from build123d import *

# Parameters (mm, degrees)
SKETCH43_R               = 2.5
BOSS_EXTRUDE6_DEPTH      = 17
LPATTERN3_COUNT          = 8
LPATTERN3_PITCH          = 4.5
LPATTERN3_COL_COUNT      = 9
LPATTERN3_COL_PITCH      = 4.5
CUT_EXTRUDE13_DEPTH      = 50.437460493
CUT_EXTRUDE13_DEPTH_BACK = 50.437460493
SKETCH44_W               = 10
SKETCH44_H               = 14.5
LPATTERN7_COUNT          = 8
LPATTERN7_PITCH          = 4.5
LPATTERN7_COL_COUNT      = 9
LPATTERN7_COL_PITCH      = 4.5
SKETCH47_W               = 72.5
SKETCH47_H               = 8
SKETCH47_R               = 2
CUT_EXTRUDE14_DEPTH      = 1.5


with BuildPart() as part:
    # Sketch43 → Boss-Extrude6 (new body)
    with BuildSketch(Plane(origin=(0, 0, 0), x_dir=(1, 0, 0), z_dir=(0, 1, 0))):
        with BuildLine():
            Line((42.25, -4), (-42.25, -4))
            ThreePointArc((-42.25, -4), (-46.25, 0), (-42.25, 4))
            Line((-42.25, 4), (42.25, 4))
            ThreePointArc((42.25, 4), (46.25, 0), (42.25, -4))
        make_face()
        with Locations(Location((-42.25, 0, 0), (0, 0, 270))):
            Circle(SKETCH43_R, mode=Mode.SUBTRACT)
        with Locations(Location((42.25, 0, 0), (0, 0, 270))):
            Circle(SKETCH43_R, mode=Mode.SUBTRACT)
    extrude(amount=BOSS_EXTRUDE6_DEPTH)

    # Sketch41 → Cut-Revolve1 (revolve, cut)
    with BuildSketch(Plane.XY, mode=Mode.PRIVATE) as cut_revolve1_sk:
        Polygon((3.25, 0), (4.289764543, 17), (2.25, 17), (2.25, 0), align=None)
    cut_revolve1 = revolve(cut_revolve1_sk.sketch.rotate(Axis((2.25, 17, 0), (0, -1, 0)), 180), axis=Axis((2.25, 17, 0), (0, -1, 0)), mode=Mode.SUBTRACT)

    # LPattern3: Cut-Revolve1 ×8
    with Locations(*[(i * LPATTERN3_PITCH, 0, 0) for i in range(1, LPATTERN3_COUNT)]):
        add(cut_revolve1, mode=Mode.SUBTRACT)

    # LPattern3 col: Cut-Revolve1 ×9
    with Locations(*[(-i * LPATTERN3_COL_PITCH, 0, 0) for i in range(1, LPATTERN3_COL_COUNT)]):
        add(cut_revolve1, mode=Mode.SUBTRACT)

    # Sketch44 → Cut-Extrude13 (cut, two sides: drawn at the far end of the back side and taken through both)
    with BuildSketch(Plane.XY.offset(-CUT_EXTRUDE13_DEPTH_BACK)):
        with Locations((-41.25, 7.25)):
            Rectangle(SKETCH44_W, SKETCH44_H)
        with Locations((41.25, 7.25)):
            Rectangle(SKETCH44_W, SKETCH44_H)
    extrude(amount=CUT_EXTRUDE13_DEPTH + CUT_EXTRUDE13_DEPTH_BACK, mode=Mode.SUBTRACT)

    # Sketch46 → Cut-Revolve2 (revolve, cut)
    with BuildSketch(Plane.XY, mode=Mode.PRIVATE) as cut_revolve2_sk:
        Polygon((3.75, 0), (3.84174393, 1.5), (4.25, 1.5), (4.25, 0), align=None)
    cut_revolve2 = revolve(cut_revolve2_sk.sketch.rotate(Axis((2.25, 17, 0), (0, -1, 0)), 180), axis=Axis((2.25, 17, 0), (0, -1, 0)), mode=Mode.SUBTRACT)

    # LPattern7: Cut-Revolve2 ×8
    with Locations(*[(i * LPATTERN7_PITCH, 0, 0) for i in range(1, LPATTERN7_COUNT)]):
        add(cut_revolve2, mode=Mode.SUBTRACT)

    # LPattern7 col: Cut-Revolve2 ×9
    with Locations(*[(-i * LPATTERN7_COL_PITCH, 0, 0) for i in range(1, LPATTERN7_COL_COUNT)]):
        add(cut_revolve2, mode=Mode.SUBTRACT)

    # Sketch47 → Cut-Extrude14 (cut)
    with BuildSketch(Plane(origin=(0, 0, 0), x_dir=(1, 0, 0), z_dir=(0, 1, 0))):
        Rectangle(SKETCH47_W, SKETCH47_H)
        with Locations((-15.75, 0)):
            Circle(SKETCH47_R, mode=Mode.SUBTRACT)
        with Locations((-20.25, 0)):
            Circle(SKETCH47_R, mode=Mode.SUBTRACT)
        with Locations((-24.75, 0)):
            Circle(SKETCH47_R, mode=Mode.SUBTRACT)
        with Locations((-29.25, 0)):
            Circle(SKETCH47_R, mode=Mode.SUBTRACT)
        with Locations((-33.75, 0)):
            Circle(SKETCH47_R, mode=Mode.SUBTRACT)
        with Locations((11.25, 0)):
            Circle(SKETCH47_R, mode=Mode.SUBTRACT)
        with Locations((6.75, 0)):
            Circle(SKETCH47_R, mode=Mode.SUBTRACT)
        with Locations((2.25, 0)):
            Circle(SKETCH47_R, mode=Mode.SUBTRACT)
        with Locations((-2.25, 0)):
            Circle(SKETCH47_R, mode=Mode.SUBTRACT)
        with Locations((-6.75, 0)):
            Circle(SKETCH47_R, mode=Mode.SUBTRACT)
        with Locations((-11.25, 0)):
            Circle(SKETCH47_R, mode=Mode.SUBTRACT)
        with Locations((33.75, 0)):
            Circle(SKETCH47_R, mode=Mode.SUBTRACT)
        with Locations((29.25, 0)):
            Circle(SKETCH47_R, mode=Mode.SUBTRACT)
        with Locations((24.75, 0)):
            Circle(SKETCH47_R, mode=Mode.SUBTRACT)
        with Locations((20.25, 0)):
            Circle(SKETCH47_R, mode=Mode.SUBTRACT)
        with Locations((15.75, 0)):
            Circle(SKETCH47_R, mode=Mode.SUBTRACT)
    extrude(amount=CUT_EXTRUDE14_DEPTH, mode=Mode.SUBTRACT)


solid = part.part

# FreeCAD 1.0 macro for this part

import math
import FreeCAD as App
import Part
import Sketcher
from FreeCAD import Vector
Q = App.Units.Quantity


def add_polygon(sketch, points):
    """Adds a closed chain of lines whose ends are joined by coincident constraints."""
    first, n = sketch.GeometryCount, len(points)
    for a, b in zip(points, points[1:] + points[:1]):
        sketch.addGeometry(Part.LineSegment(App.Vector(*a, 0), App.Vector(*b, 0)), False)
    for i in range(n):
        sketch.addConstraint(Sketcher.Constraint("Coincident", first + i, 2, first + (i + 1) % n, 1))

doc = App.newDocument("Part")
params = doc.addObject("Spreadsheet::Sheet", "Params")
for row, (alias, value) in enumerate([
    ("sketch1_diameter", "5 mm"),
    ("sketch1_radius", "4 mm"),
    ("sketch1_width", "84.5 mm"),
    ("pad1_length", "17 mm"),
    ("sketch2_width", "1 mm"),
    ("sketch2_height", "17 mm"),
    ("groove_angle", "360 deg"),
    ("linearpattern_pitch", "4.5 mm"),
    ("linearpattern2_pitch", "4.5 mm"),
    ("sketch3_width", "10 mm"),
    ("sketch3_height", "14.5 mm"),
    ("sketch4_width", "0.5 mm"),
    ("sketch4_height", "1.5 mm"),
    ("groove2_angle", "360 deg"),
    ("linearpattern3_pitch", "4.5 mm"),
    ("linearpattern4_pitch", "4.5 mm"),
    ("sketch5_diameter", "4 mm"),
    ("sketch5_height", "8 mm"),
    ("sketch5_width", "72.5 mm"),
    ("pocket2_length", "1.5 mm"),
], start=1):
    params.set(f"A{row}", alias)
    params.set(f"B{row}", "=" + value)
    params.setAlias(f"B{row}", alias)

body = doc.addObject("PartDesign::Body", "Body")

sketch1 = body.newObject("Sketcher::SketchObject", "Sketch")
sketch1.AttachmentSupport = (doc.getObject("XZ_Plane"), [""])
sketch1.MapMode = "FlatFace"
sketch1.addGeometry(Part.LineSegment(Vector(-42.2, 4, 0), Vector(42.2, 4, 0)), False)
sketch1.addGeometry(Part.ArcOfCircle(Part.Circle(Vector(42.2, 0, 0), Vector(0, 0, 1), 4), math.radians(-90), math.radians(90)), False)
sketch1.addGeometry(Part.LineSegment(Vector(42.2, -4, 0), Vector(-42.2, -4, 0)), False)
sketch1.addGeometry(Part.ArcOfCircle(Part.Circle(Vector(-42.2, 0, 0), Vector(0, 0, 1), 4), math.radians(90), math.radians(270)), False)
sketch1.addGeometry(Part.Circle(Vector(42.2, 0, 0), Vector(0, 0, 1), 2.5), False)
sketch1.addGeometry(Part.Circle(Vector(-42.2, 0, 0), Vector(0, 0, 1), 2.5), False)
sketch1.addConstraint(Sketcher.Constraint("Tangent", 0, 2, 1, 2))
sketch1.addConstraint(Sketcher.Constraint("Tangent", 1, 1, 2, 1))
sketch1.addConstraint(Sketcher.Constraint("Tangent", 2, 2, 3, 2))
sketch1.addConstraint(Sketcher.Constraint("Tangent", 3, 1, 0, 1))
sketch1.addConstraint(Sketcher.Constraint("Horizontal", 0))
sketch1.addConstraint(Sketcher.Constraint("Horizontal", 2))
sketch1.addConstraint(Sketcher.Constraint("Coincident", 4, 3, 1, 3))
sketch1.addConstraint(Sketcher.Constraint("Coincident", 5, 3, 3, 3))
sketch1.addConstraint(Sketcher.Constraint("Equal", 4, 5))
sketch1.addConstraint(Sketcher.Constraint("Symmetric", 1, 3, 3, 3, -1, 1))
sketch1.addConstraint(Sketcher.Constraint("Diameter", 4, Q("5 mm")))
sketch1.addConstraint(Sketcher.Constraint("Radius", 1, Q("4 mm")))
sketch1.addConstraint(Sketcher.Constraint("DistanceX", 0, 1, 0, 2, Q("84.5 mm")))
sketch1.setExpression("Constraints[10]", "Params.sketch1_diameter")
sketch1.setExpression("Constraints[11]", "Params.sketch1_radius")
sketch1.setExpression("Constraints[12]", "Params.sketch1_width")
pad1 = body.newObject("PartDesign::Pad", "Pad")
pad1.Profile = sketch1
pad1.setExpression("Length", "Params.pad1_length")
pad1.Reversed = True

sketch2 = body.newObject("Sketcher::SketchObject", "Sketch001")
sketch2.AttachmentSupport = (doc.getObject("XY_Plane"), [""])
sketch2.MapMode = "FlatFace"
add_polygon(sketch2, [(3.2, 0), (4.3, 17), (2.2, 17), (2.2, 0)])
sketch2.addGeometry(Part.LineSegment(Vector(2.2, 17, 0), Vector(2.2, 0, 0)), True)
sketch2.addConstraint(Sketcher.Constraint("Horizontal", 1))
sketch2.addConstraint(Sketcher.Constraint("Vertical", 2))
sketch2.addConstraint(Sketcher.Constraint("Horizontal", 3))
sketch2.addConstraint(Sketcher.Constraint("Vertical", 4))
sketch2.addConstraint(Sketcher.Constraint("Coincident", 4, 1, 1, 2))
sketch2.addConstraint(Sketcher.Constraint("PointOnObject", 2, 2, -1))
sketch2.addConstraint(Sketcher.Constraint("PointOnObject", 4, 2, -1))
sketch2.addConstraint(Sketcher.Constraint("DistanceX", 3, 1, 3, 2, Q("1 mm")))
sketch2.addConstraint(Sketcher.Constraint("DistanceY", 2, 2, 2, 1, Q("17 mm")))
sketch2.addConstraint(Sketcher.Constraint("Angle", 0, Q("86.5 deg")))
sketch2.addConstraint(Sketcher.Constraint("DistanceX", -1, 1, 1, 2, Q("2.25 mm")))
sketch2.setExpression("Constraints[11]", "Params.sketch2_width")
sketch2.setExpression("Constraints[12]", "Params.sketch2_height")
groove = body.newObject("PartDesign::Groove", "Groove")
groove.Profile = sketch2
groove.ReferenceAxis = (sketch2, ["Axis0"])
groove.setExpression("Angle", "Params.groove_angle")
doc.recompute()

linearpattern = body.newObject("PartDesign::LinearPattern", "LinearPattern")
linearpattern.Originals = [groove]
linearpattern.Direction = (doc.getObject("X_Axis"), [""])
linearpattern.Mode = "offset"
linearpattern.setExpression("Offset", "Params.linearpattern_pitch")
linearpattern.Occurrences = 8
body.Tip = linearpattern
doc.recompute()

linearpattern2 = body.newObject("PartDesign::LinearPattern", "LinearPattern001")
linearpattern2.Originals = [groove]
linearpattern2.Direction = (doc.getObject("X_Axis"), [""])
linearpattern2.Mode = "offset"
linearpattern2.setExpression("Offset", "Params.linearpattern2_pitch")
linearpattern2.Occurrences = 9
linearpattern2.Reversed = True
body.Tip = linearpattern2

sketch3 = body.newObject("Sketcher::SketchObject", "Sketch002")
sketch3.AttachmentSupport = (doc.getObject("XY_Plane"), [""])
sketch3.MapMode = "FlatFace"
add_polygon(sketch3, [(-46, 14), (-46, 0), (-36, 0), (-36, 14)])
add_polygon(sketch3, [(36, 14), (36, 0), (46, 0), (46, 14)])
sketch3.addConstraint(Sketcher.Constraint("Vertical", 0))
sketch3.addConstraint(Sketcher.Constraint("Horizontal", 1))
sketch3.addConstraint(Sketcher.Constraint("Vertical", 2))
sketch3.addConstraint(Sketcher.Constraint("Horizontal", 3))
sketch3.addConstraint(Sketcher.Constraint("Vertical", 4))
sketch3.addConstraint(Sketcher.Constraint("Horizontal", 5))
sketch3.addConstraint(Sketcher.Constraint("Vertical", 6))
sketch3.addConstraint(Sketcher.Constraint("Horizontal", 7))
sketch3.addConstraint(Sketcher.Constraint("Symmetric", 1, 2, 4, 2, -1, 1))
sketch3.addConstraint(Sketcher.Constraint("Symmetric", 0, 2, 5, 2, -2))
sketch3.addConstraint(Sketcher.Constraint("Horizontal", 3, 2, 6, 2))
sketch3.addConstraint(Sketcher.Constraint("DistanceX", 1, 1, 1, 2, Q("10 mm")))
sketch3.addConstraint(Sketcher.Constraint("DistanceY", 0, 2, 0, 1, Q("14.5 mm")))
sketch3.addConstraint(Sketcher.Constraint("DistanceX", 1, 2, 4, 2, Q("72.5 mm")))
sketch3.setExpression("Constraints[19]", "Params.sketch3_width")
sketch3.setExpression("Constraints[20]", "Params.sketch3_height")
pocket1 = body.newObject("PartDesign::Pocket", "Pocket")
pocket1.Profile = sketch3
pocket1.Type = "ThroughAll"
pocket1.Midplane = True

sketch4 = body.newObject("Sketcher::SketchObject", "Sketch003")
sketch4.AttachmentSupport = (doc.getObject("XY_Plane"), [""])
sketch4.MapMode = "FlatFace"
add_polygon(sketch4, [(3.84, 1.5), (3.75, 0), (4.25, 0), (4.25, 1.5)])
sketch4.addGeometry(Part.LineSegment(Vector(2.25, 1.5, 0), Vector(2.25, 0, 0)), True)
sketch4.addConstraint(Sketcher.Constraint("Horizontal", 1))
sketch4.addConstraint(Sketcher.Constraint("Vertical", 2))
sketch4.addConstraint(Sketcher.Constraint("Horizontal", 3))
sketch4.addConstraint(Sketcher.Constraint("Vertical", 4))
sketch4.addConstraint(Sketcher.Constraint("PointOnObject", 0, 2, -1))
sketch4.addConstraint(Sketcher.Constraint("PointOnObject", 4, 2, -1))
sketch4.addConstraint(Sketcher.Constraint("Horizontal", 3, 2, 4, 1))
sketch4.addConstraint(Sketcher.Constraint("DistanceX", 1, 1, 1, 2, Q("0.5 mm")))
sketch4.addConstraint(Sketcher.Constraint("DistanceY", 2, 1, 2, 2, Q("1.5 mm")))
sketch4.addConstraint(Sketcher.Constraint("Angle", 0, Q("-93.5 deg")))
sketch4.addConstraint(Sketcher.Constraint("DistanceX", 4, 1, 2, 2, Q("2 mm")))
sketch4.addConstraint(Sketcher.Constraint("DistanceX", -1, 1, 0, 2, Q("3.75 mm")))
sketch4.setExpression("Constraints[11]", "Params.sketch4_width")
sketch4.setExpression("Constraints[12]", "Params.sketch4_height")
groove2 = body.newObject("PartDesign::Groove", "Groove001")
groove2.Profile = sketch4
groove2.ReferenceAxis = (sketch4, ["Axis0"])
groove2.setExpression("Angle", "Params.groove2_angle")
doc.recompute()

linearpattern3 = body.newObject("PartDesign::LinearPattern", "LinearPattern002")
linearpattern3.Originals = [groove2]
linearpattern3.Direction = (doc.getObject("X_Axis"), [""])
linearpattern3.Mode = "offset"
linearpattern3.setExpression("Offset", "Params.linearpattern3_pitch")
linearpattern3.Occurrences = 8
body.Tip = linearpattern3
doc.recompute()

linearpattern4 = body.newObject("PartDesign::LinearPattern", "LinearPattern003")
linearpattern4.Originals = [groove2]
linearpattern4.Direction = (doc.getObject("X_Axis"), [""])
linearpattern4.Mode = "offset"
linearpattern4.setExpression("Offset", "Params.linearpattern4_pitch")
linearpattern4.Occurrences = 9
linearpattern4.Reversed = True
body.Tip = linearpattern4

sketch5 = body.newObject("Sketcher::SketchObject", "Sketch004")
sketch5.AttachmentSupport = (doc.getObject("XZ_Plane"), [""])
sketch5.MapMode = "FlatFace"
add_polygon(sketch5, [(-36.2, -4), (-36.2, 4), (36.2, 4), (36.2, -4)])
sketch5.addGeometry(Part.Circle(Vector(-33.8, 0, 0), Vector(0, 0, 1), 2), False)
sketch5.addGeometry(Part.Circle(Vector(-29.2, 0, 0), Vector(0, 0, 1), 2), False)
sketch5.addGeometry(Part.Circle(Vector(-24.8, 0, 0), Vector(0, 0, 1), 2), False)
sketch5.addGeometry(Part.Circle(Vector(-20.2, 0, 0), Vector(0, 0, 1), 2), False)
sketch5.addGeometry(Part.Circle(Vector(-15.8, 0, 0), Vector(0, 0, 1), 2), False)
sketch5.addGeometry(Part.Circle(Vector(-11.2, 0, 0), Vector(0, 0, 1), 2), False)
sketch5.addGeometry(Part.Circle(Vector(-6.8, 0, 0), Vector(0, 0, 1), 2), False)
sketch5.addGeometry(Part.Circle(Vector(-2.2, 0, 0), Vector(0, 0, 1), 2), False)
sketch5.addGeometry(Part.Circle(Vector(2.2, 0, 0), Vector(0, 0, 1), 2), False)
sketch5.addGeometry(Part.Circle(Vector(6.8, 0, 0), Vector(0, 0, 1), 2), False)
sketch5.addGeometry(Part.Circle(Vector(11.2, 0, 0), Vector(0, 0, 1), 2), False)
sketch5.addGeometry(Part.Circle(Vector(15.8, 0, 0), Vector(0, 0, 1), 2), False)
sketch5.addGeometry(Part.Circle(Vector(20.2, 0, 0), Vector(0, 0, 1), 2), False)
sketch5.addGeometry(Part.Circle(Vector(24.8, 0, 0), Vector(0, 0, 1), 2), False)
sketch5.addGeometry(Part.Circle(Vector(29.2, 0, 0), Vector(0, 0, 1), 2), False)
sketch5.addGeometry(Part.Circle(Vector(33.8, 0, 0), Vector(0, 0, 1), 2), False)
sketch5.addConstraint(Sketcher.Constraint("Vertical", 0))
sketch5.addConstraint(Sketcher.Constraint("Horizontal", 1))
sketch5.addConstraint(Sketcher.Constraint("Vertical", 2))
sketch5.addConstraint(Sketcher.Constraint("Horizontal", 3))
sketch5.addConstraint(Sketcher.Constraint("Equal", 4, 5))
sketch5.addConstraint(Sketcher.Constraint("Equal", 5, 6))
sketch5.addConstraint(Sketcher.Constraint("Equal", 6, 7))
sketch5.addConstraint(Sketcher.Constraint("Equal", 7, 8))
sketch5.addConstraint(Sketcher.Constraint("Equal", 8, 9))
sketch5.addConstraint(Sketcher.Constraint("Equal", 9, 10))
sketch5.addConstraint(Sketcher.Constraint("Equal", 10, 11))
sketch5.addConstraint(Sketcher.Constraint("Equal", 11, 12))
sketch5.addConstraint(Sketcher.Constraint("Equal", 12, 13))
sketch5.addConstraint(Sketcher.Constraint("Equal", 13, 14))
sketch5.addConstraint(Sketcher.Constraint("Equal", 14, 15))
sketch5.addConstraint(Sketcher.Constraint("Equal", 15, 16))
sketch5.addConstraint(Sketcher.Constraint("Equal", 16, 17))
sketch5.addConstraint(Sketcher.Constraint("Equal", 17, 18))
sketch5.addConstraint(Sketcher.Constraint("Equal", 18, 19))
sketch5.addConstraint(Sketcher.Constraint("Symmetric", 11, 3, 12, 3, -1, 1))
sketch5.addConstraint(Sketcher.Constraint("Symmetric", 10, 3, 13, 3, -1, 1))
sketch5.addConstraint(Sketcher.Constraint("Symmetric", 9, 3, 14, 3, -1, 1))
sketch5.addConstraint(Sketcher.Constraint("Symmetric", 8, 3, 15, 3, -1, 1))
sketch5.addConstraint(Sketcher.Constraint("Symmetric", 7, 3, 16, 3, -1, 1))
sketch5.addConstraint(Sketcher.Constraint("Symmetric", 6, 3, 17, 3, -1, 1))
sketch5.addConstraint(Sketcher.Constraint("Symmetric", 5, 3, 18, 3, -1, 1))
sketch5.addConstraint(Sketcher.Constraint("Symmetric", 4, 3, 19, 3, -1, 1))
sketch5.addConstraint(Sketcher.Constraint("Symmetric", 0, 2, 2, 2, -1, 1))
sketch5.addConstraint(Sketcher.Constraint("PointOnObject", 4, 3, -1))
sketch5.addConstraint(Sketcher.Constraint("PointOnObject", 5, 3, -1))
sketch5.addConstraint(Sketcher.Constraint("PointOnObject", 6, 3, -1))
sketch5.addConstraint(Sketcher.Constraint("PointOnObject", 7, 3, -1))
sketch5.addConstraint(Sketcher.Constraint("PointOnObject", 8, 3, -1))
sketch5.addConstraint(Sketcher.Constraint("PointOnObject", 9, 3, -1))
sketch5.addConstraint(Sketcher.Constraint("PointOnObject", 10, 3, -1))
sketch5.addConstraint(Sketcher.Constraint("PointOnObject", 11, 3, -1))
sketch5.addConstraint(Sketcher.Constraint("Diameter", 4, Q("4 mm")))
sketch5.addConstraint(Sketcher.Constraint("DistanceY", 0, 1, 0, 2, Q("8 mm")))
sketch5.addConstraint(Sketcher.Constraint("DistanceX", 1, 1, 1, 2, Q("72.5 mm")))
sketch5.addConstraint(Sketcher.Constraint("DistanceX", 4, 3, 6, 3, Q("9 mm")))
sketch5.addConstraint(Sketcher.Constraint("DistanceX", 5, 3, 7, 3, Q("9 mm")))
sketch5.addConstraint(Sketcher.Constraint("DistanceX", 6, 3, 8, 3, Q("9 mm")))
sketch5.addConstraint(Sketcher.Constraint("DistanceX", 7, 3, 9, 3, Q("9 mm")))
sketch5.addConstraint(Sketcher.Constraint("DistanceX", 8, 3, 10, 3, Q("9 mm")))
sketch5.addConstraint(Sketcher.Constraint("DistanceX", 9, 3, 11, 3, Q("9 mm")))
sketch5.addConstraint(Sketcher.Constraint("DistanceX", 10, 3, 12, 3, Q("9 mm")))
sketch5.addConstraint(Sketcher.Constraint("DistanceX", 0, 2, 5, 3, Q("7 mm")))
sketch5.setExpression("Constraints[40]", "Params.sketch5_diameter")
sketch5.setExpression("Constraints[41]", "Params.sketch5_height")
sketch5.setExpression("Constraints[42]", "Params.sketch5_width")
pocket2 = body.newObject("PartDesign::Pocket", "Pocket001")
pocket2.Profile = sketch5
pocket2.setExpression("Length", "Params.pocket2_length")

doc.recompute()
